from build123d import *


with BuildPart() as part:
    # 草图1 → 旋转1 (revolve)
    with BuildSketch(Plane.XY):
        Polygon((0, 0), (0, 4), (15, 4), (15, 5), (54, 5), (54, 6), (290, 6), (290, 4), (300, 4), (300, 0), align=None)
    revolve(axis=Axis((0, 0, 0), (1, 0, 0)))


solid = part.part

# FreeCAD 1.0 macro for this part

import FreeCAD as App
import Part
import Sketcher


def add_polygon(sketch, points):
    """Adds a closed chain of lines whose ends are joined by coincident constraints."""
    first, n = sketch.GeometryCount, len(points)
    for a, b in zip(points, points[1:] + points[:1]):
        sketch.addGeometry(Part.LineSegment(App.Vector(*a, 0), App.Vector(*b, 0)), False)
    for i in range(n):
        sketch.addConstraint(Sketcher.Constraint("Coincident", first + i, 2, first + (i + 1) % n, 1))

doc = App.newDocument("Part")
params = doc.addObject("Spreadsheet::Sheet", "Params")
for row, (alias, value) in enumerate([
    ("sketch1_width", "300 mm"),
    ("sketch1_width2", "10 mm"),
    ("sketch1_width3", "236 mm"),
    ("sketch1_width4", "39 mm"),
    ("sketch1_height", "4 mm"),
    ("revolution_angle", "360 deg"),
], start=1):
    params.set(f"A{row}", alias)
    params.set(f"B{row}", "=" + value)
    params.setAlias(f"B{row}", alias)

body = doc.addObject("PartDesign::Body", "Body")

# Sketch on XY plane
sketch1 = doc.addObject("Sketcher::SketchObject", "Sketch")
body.addObject(sketch1)
sketch1.AttachmentSupport = (doc.XY_Plane, [""])
sketch1.MapMode = "FlatFace"
add_polygon(sketch1, [(0, 4), (0, 0), (300, 0), (300, 4), (290, 4), (290, 6), (54, 6), (54, 5), (15, 5), (15, 4)])  # lines 0-9
sketch1.addConstraint(Sketcher.Constraint("Vertical", 0))
sketch1.addConstraint(Sketcher.Constraint("Horizontal", 1))
sketch1.addConstraint(Sketcher.Constraint("Vertical", 2))
sketch1.addConstraint(Sketcher.Constraint("Horizontal", 3))
sketch1.addConstraint(Sketcher.Constraint("Vertical", 4))
sketch1.addConstraint(Sketcher.Constraint("Horizontal", 5))
sketch1.addConstraint(Sketcher.Constraint("Vertical", 6))
sketch1.addConstraint(Sketcher.Constraint("Horizontal", 7))
sketch1.addConstraint(Sketcher.Constraint("Vertical", 8))
sketch1.addConstraint(Sketcher.Constraint("Horizontal", 9))
sketch1.addConstraint(Sketcher.Constraint("Coincident", 0, 2, -1, 1))
sketch1.addConstraint(Sketcher.Constraint("Horizontal", 3, 2, 8, 2))
sketch1.addConstraint(Sketcher.Constraint("Equal", 6, 8))
sketch1.addConstraint(Sketcher.Constraint("DistanceX", 1, 1, 1, 2, 300.0))
sketch1.addConstraint(Sketcher.Constraint("DistanceX", 3, 2, 3, 1, 10.0))
sketch1.addConstraint(Sketcher.Constraint("DistanceX", 5, 2, 5, 1, 236.0))
sketch1.addConstraint(Sketcher.Constraint("DistanceX", 7, 2, 7, 1, 39.0))
sketch1.addConstraint(Sketcher.Constraint("DistanceY", 0, 2, 0, 1, 4.0))
sketch1.addConstraint(Sketcher.Constraint("DistanceY", 4, 1, 4, 2, 2.0))
sketch1.setExpression("Constraints[23]", "Params.sketch1_width")
sketch1.setExpression("Constraints[24]", "Params.sketch1_width2")
sketch1.setExpression("Constraints[25]", "Params.sketch1_width3")
sketch1.setExpression("Constraints[26]", "Params.sketch1_width4")
sketch1.setExpression("Constraints[27]", "Params.sketch1_height")
revolution = doc.addObject("PartDesign::Revolution", "Revolution")
body.addObject(revolution)
revolution.Profile = sketch1
revolution.ReferenceAxis = (sketch1, ["H_Axis"])
revolution.setExpression("Angle", "Params.revolution_angle")

doc.recompute()
